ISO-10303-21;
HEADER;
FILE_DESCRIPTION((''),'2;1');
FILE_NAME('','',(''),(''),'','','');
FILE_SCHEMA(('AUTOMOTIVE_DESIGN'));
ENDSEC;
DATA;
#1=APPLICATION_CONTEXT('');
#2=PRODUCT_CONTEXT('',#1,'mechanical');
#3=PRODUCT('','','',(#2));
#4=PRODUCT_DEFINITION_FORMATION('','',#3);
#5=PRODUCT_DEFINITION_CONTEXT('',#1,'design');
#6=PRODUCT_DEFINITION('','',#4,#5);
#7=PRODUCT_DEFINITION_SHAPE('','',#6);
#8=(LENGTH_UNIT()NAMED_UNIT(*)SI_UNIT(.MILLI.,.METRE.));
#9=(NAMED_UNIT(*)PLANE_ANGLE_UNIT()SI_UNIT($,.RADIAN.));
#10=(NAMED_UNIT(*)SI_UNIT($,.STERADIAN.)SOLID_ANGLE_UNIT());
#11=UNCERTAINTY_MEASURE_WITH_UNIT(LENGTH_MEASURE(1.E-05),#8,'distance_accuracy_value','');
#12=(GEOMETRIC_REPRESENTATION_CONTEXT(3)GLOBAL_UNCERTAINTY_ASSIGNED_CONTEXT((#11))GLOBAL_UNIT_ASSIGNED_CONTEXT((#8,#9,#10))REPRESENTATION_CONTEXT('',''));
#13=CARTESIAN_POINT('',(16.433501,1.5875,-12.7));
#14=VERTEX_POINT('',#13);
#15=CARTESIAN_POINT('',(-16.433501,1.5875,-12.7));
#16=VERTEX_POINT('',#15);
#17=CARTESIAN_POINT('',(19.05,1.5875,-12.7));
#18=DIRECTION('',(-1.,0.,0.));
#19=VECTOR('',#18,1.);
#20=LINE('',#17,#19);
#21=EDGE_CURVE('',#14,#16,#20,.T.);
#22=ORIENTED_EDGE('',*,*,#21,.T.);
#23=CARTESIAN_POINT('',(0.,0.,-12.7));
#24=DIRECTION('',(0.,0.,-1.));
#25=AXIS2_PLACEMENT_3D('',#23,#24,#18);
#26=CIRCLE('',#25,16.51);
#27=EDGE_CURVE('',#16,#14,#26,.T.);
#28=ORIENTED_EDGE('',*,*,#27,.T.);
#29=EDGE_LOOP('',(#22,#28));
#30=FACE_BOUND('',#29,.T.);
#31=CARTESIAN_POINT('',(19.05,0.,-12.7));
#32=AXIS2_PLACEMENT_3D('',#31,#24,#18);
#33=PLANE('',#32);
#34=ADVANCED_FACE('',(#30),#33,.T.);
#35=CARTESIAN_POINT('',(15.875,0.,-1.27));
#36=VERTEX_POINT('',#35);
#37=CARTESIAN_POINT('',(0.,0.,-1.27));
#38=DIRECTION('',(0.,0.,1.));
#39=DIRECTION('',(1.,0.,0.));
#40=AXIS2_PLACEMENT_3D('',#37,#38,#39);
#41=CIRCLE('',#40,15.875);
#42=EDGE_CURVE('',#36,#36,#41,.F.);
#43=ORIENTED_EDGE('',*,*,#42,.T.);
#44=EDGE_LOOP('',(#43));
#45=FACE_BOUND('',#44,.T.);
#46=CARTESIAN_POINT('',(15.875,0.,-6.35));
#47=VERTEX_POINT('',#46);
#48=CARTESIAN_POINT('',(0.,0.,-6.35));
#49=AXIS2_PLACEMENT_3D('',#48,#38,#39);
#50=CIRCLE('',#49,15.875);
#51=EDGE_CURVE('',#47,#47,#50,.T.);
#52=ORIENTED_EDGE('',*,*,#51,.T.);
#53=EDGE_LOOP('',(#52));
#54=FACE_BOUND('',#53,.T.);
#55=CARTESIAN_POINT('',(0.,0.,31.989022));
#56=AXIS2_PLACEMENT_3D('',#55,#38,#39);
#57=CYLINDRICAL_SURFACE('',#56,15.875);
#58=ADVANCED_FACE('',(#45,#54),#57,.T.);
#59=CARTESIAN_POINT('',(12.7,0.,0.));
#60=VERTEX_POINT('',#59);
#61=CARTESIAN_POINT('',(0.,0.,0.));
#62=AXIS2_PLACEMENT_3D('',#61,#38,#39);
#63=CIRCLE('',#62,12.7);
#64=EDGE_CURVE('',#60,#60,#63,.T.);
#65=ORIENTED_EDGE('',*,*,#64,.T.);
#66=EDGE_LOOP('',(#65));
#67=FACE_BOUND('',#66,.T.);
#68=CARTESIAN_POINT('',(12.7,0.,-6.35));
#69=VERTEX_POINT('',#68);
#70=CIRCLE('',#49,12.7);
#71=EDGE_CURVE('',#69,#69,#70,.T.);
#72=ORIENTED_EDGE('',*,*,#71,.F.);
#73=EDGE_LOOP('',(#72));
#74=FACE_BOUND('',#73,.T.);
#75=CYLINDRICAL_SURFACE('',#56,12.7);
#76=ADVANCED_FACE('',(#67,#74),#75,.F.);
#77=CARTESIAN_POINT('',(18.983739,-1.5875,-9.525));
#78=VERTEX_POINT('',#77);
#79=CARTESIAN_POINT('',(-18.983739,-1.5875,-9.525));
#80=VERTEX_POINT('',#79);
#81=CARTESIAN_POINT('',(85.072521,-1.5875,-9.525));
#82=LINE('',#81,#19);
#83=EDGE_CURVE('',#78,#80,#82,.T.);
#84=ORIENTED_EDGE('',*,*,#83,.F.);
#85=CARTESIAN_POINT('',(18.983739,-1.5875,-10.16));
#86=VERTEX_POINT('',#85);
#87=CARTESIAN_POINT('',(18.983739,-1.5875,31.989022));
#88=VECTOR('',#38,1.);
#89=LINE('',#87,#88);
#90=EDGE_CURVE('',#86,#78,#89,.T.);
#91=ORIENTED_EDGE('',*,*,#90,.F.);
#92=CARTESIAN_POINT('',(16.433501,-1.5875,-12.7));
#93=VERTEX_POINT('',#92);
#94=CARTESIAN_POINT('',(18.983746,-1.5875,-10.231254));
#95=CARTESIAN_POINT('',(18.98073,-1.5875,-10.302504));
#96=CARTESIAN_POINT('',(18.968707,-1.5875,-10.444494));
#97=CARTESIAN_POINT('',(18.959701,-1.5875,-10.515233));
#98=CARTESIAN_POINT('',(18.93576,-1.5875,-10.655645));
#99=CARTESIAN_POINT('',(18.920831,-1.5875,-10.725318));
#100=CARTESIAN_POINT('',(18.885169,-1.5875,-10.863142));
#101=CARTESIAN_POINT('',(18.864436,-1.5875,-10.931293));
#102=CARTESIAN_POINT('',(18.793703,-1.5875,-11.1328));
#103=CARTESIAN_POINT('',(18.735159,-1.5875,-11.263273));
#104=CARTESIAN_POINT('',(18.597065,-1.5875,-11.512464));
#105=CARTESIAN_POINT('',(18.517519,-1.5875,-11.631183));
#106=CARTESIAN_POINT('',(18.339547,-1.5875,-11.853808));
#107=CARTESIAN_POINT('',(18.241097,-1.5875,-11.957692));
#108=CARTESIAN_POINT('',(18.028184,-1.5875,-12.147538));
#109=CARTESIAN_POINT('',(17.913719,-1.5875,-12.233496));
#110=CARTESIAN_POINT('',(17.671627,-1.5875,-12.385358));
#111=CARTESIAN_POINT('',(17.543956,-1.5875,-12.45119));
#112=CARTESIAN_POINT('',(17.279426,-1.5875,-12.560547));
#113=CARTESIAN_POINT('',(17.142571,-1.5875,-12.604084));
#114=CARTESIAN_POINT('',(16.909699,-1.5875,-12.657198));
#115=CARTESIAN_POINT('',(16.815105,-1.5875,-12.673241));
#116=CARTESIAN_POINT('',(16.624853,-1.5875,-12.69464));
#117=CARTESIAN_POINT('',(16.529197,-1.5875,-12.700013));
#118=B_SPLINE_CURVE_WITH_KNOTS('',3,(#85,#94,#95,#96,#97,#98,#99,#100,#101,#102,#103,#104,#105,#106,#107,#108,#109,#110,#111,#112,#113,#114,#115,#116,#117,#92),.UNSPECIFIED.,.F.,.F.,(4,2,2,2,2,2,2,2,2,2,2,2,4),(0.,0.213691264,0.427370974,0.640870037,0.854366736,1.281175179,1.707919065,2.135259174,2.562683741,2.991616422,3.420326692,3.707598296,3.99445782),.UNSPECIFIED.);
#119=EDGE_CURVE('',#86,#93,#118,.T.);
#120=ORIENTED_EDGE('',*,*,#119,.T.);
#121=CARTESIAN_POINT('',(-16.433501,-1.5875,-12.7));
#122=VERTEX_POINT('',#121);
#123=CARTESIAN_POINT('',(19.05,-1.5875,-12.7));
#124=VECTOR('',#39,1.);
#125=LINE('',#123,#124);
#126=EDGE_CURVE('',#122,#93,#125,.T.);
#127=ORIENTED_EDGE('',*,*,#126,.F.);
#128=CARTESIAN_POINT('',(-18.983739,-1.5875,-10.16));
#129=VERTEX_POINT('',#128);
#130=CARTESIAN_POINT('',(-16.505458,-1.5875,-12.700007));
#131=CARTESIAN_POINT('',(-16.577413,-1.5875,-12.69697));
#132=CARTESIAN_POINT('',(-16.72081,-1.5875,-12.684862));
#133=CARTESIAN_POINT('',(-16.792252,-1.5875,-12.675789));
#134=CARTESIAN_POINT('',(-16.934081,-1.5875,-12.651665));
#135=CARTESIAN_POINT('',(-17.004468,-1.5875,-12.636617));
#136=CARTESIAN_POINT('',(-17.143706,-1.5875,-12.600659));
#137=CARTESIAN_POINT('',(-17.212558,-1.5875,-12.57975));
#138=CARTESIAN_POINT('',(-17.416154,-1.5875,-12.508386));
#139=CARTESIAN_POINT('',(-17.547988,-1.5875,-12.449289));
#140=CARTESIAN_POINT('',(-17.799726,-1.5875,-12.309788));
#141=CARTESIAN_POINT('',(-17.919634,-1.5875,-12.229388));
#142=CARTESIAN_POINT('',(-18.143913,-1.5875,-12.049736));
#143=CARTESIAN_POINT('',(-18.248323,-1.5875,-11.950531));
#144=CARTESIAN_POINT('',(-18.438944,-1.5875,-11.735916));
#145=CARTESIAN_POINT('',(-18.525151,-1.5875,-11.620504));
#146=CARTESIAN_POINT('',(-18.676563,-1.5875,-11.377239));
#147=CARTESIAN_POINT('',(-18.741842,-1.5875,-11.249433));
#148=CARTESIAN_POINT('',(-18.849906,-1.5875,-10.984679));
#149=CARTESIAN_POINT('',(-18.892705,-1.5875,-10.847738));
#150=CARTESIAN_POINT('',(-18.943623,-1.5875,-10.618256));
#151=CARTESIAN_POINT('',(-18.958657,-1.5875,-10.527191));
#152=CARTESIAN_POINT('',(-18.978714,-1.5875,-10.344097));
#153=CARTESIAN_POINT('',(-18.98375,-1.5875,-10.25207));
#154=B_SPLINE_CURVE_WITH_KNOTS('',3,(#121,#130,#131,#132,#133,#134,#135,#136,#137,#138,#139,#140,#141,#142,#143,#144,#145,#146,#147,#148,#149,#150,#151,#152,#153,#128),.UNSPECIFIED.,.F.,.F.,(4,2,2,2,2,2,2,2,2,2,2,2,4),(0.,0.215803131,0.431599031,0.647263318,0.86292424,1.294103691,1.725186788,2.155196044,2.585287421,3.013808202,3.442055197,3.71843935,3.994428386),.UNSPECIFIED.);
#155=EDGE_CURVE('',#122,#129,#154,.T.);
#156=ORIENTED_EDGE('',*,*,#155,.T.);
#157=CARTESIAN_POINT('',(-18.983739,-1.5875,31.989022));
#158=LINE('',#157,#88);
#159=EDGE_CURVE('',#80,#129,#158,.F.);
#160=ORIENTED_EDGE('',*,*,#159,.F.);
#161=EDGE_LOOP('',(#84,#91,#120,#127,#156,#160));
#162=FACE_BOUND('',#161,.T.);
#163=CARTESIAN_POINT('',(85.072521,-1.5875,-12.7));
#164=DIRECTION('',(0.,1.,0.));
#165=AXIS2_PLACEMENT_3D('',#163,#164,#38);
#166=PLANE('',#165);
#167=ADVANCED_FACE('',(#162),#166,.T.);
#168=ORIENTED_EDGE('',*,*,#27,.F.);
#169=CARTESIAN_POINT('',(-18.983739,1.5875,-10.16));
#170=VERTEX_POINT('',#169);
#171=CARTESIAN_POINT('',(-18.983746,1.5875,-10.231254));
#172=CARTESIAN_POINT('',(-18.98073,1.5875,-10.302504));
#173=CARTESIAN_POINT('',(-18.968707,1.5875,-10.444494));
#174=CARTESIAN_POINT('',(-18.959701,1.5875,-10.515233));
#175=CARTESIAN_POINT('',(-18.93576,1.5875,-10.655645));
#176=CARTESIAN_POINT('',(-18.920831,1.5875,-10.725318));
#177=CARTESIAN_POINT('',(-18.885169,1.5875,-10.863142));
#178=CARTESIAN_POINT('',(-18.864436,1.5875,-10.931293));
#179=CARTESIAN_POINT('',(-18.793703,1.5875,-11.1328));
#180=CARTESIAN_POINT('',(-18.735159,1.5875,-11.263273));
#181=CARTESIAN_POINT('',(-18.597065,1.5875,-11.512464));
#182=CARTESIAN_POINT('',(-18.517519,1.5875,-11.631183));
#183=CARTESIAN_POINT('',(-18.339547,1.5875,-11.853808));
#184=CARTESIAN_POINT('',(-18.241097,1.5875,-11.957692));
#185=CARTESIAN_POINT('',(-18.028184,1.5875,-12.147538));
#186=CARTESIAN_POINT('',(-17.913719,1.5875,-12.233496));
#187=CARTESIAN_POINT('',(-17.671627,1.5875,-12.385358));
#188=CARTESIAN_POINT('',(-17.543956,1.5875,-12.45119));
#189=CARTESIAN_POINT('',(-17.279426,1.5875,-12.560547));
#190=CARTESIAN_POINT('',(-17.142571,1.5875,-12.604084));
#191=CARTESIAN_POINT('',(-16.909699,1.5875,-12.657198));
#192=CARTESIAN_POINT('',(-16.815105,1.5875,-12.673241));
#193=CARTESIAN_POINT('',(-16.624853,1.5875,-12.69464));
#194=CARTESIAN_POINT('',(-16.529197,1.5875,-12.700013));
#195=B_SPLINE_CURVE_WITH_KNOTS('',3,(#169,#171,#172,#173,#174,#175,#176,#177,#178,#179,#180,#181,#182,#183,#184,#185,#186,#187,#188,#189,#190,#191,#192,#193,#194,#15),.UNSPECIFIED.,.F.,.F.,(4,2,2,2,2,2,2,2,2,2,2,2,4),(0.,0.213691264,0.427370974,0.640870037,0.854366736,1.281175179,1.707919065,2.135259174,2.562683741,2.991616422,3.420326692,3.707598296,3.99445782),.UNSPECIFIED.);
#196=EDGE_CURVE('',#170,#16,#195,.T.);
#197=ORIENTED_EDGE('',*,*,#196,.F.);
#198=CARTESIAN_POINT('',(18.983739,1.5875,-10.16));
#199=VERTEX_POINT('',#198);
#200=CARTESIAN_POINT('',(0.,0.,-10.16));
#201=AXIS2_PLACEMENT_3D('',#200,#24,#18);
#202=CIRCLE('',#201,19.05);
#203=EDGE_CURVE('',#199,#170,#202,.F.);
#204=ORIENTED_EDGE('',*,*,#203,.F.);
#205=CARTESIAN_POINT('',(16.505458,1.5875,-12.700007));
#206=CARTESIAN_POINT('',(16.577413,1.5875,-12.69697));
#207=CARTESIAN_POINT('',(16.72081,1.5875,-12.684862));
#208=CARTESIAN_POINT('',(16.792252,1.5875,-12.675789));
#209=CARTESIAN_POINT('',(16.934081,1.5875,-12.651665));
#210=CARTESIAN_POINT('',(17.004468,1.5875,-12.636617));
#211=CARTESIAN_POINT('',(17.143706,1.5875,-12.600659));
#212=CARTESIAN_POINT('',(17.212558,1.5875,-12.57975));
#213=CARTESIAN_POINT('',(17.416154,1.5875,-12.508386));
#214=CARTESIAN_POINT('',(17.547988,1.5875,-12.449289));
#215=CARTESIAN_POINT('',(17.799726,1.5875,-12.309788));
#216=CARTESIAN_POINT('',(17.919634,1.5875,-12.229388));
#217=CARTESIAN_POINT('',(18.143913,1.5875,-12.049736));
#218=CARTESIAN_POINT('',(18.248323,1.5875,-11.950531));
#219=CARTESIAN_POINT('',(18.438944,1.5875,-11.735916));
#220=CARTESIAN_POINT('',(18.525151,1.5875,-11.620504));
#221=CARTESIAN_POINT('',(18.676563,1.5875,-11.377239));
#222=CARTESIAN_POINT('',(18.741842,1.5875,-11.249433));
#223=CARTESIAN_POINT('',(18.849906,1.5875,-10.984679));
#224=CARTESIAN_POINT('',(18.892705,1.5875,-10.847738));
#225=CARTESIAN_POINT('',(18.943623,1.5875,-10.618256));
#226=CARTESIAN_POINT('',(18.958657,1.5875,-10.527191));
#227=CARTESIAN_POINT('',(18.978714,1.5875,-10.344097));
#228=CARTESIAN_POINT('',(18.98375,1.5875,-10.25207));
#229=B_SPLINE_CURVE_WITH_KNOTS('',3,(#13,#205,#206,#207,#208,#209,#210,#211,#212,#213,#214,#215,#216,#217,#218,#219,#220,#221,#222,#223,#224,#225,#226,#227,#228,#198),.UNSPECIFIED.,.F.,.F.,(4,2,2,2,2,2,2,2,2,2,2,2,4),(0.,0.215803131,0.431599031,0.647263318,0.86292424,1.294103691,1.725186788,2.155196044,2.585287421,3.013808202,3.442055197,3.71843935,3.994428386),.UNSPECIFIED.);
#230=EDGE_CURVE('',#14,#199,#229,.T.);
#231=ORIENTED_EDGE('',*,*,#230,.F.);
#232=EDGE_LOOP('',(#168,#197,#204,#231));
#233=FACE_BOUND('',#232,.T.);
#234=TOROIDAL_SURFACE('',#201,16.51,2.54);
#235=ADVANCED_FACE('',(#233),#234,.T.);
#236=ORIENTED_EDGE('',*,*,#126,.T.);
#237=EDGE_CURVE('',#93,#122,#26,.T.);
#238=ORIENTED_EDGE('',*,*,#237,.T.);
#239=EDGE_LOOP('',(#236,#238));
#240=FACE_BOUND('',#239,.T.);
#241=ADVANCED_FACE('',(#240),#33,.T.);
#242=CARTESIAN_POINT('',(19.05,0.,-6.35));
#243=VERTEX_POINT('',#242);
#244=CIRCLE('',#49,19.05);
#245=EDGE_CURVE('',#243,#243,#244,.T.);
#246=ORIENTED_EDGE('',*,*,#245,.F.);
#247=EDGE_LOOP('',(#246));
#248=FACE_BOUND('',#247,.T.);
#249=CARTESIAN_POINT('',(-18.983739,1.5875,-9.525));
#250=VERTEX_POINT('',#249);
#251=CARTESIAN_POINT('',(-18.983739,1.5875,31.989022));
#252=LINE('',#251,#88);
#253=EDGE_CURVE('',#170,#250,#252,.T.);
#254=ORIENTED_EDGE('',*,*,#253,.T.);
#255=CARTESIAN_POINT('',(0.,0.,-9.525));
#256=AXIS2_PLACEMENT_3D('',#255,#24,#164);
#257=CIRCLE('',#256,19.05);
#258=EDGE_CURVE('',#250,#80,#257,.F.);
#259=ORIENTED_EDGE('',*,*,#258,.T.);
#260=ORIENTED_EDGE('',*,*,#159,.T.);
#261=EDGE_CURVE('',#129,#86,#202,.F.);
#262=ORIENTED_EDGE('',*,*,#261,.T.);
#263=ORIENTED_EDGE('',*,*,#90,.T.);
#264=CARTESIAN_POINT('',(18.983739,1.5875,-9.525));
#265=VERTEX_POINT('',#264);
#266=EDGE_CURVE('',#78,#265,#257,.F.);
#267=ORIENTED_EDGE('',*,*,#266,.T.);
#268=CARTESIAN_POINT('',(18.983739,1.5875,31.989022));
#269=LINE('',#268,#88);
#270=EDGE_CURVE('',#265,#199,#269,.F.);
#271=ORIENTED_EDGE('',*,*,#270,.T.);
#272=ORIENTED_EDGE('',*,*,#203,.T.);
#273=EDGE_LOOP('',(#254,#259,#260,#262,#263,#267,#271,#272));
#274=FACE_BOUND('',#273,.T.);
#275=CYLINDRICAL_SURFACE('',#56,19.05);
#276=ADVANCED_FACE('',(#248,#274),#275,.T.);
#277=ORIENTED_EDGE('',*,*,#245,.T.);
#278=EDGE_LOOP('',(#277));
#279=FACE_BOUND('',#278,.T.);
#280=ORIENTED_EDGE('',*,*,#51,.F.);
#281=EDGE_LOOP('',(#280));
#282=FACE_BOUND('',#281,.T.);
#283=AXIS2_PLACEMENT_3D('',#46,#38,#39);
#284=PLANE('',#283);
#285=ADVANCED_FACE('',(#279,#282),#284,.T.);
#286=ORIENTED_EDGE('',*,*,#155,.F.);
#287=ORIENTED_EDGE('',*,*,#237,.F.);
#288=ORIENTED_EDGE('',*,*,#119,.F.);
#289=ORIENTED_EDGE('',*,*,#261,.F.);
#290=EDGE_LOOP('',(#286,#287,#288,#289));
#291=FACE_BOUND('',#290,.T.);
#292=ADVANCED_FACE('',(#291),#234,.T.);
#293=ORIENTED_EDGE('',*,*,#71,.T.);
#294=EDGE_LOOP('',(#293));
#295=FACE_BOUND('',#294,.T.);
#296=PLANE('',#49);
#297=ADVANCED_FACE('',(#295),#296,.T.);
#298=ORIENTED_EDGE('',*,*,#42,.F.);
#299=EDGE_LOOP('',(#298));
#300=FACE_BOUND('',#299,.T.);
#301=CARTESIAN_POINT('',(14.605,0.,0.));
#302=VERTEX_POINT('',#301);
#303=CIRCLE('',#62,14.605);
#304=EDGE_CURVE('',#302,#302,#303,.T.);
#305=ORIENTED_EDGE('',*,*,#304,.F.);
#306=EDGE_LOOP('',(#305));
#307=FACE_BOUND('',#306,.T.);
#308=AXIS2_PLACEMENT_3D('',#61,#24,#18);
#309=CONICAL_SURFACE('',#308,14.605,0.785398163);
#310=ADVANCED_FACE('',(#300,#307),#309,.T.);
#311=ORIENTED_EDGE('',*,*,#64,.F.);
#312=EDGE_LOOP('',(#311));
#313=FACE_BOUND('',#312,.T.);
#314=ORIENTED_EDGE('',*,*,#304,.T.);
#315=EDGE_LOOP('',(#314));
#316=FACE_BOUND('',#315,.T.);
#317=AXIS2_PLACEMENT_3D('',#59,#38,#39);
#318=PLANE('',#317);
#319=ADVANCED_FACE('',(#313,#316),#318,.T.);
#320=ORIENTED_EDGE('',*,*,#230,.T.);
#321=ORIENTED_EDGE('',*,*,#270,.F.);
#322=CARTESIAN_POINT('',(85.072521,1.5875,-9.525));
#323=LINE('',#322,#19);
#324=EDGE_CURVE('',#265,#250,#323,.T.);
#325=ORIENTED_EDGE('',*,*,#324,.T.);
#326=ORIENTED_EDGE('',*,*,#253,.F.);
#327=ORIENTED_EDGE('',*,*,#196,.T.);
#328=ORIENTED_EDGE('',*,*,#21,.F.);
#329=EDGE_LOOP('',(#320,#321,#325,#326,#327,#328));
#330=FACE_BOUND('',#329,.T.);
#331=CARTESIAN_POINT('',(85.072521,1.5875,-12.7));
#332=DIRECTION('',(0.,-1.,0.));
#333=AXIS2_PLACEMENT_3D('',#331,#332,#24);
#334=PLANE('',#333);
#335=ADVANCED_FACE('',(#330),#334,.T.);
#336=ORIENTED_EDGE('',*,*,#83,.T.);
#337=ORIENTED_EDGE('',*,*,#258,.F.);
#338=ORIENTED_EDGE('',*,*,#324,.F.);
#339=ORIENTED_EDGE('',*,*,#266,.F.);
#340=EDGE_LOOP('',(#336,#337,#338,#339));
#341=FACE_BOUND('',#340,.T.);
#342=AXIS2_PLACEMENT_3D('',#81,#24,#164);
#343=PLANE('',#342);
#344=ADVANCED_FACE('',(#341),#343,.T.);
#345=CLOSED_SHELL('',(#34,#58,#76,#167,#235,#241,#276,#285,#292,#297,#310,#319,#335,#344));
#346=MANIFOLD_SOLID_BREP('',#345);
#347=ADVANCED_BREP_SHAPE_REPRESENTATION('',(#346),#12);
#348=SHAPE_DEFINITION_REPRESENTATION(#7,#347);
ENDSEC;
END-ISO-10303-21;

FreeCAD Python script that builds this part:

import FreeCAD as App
import Part
import Sketcher
Q = App.Units.Quantity


def edges_at(feature, points):
    """Names of the edges that pass closest to the given points."""
    edges = feature.Shape.Edges
    near = lambda p: min(range(len(edges)), key=lambda i: edges[i].distToShape(Part.Vertex(*p))[0])
    return sorted({f"Edge{near(p) + 1}" for p in points})


def add_polygon(sketch, points):
    """Adds a closed chain of lines whose ends are joined by coincident constraints."""
    first, n = sketch.GeometryCount, len(points)
    for a, b in zip(points, points[1:] + points[:1]):
        sketch.addGeometry(Part.LineSegment(App.Vector(*a, 0), App.Vector(*b, 0)), False)
    for i in range(n):
        sketch.addConstraint(Sketcher.Constraint("Coincident", first + i, 2, first + (i + 1) % n, 1))

doc = App.newDocument("Part")
body = doc.addObject("PartDesign::Body", "Body")

sketch1 = doc.addObject("Sketcher::SketchObject", "Sketch")
body.addObject(sketch1)
sketch1.AttachmentSupport = (doc.XZ_Plane, [""])
sketch1.MapMode = "FlatFace"
add_polygon(sketch1, [(12.7, 0), (15.9, 0), (15.9, -6.3), (19.1, -6.3), (19.1, -12.7), (0, -12.7), (0, -6.3), (12.7, -6.3)])
sketch1.addConstraint(Sketcher.Constraint("Horizontal", 0))
sketch1.addConstraint(Sketcher.Constraint("Vertical", 1))
sketch1.addConstraint(Sketcher.Constraint("Horizontal", 2))
sketch1.addConstraint(Sketcher.Constraint("Vertical", 3))
sketch1.addConstraint(Sketcher.Constraint("Horizontal", 4))
sketch1.addConstraint(Sketcher.Constraint("Vertical", 5))
sketch1.addConstraint(Sketcher.Constraint("Horizontal", 6))
sketch1.addConstraint(Sketcher.Constraint("Vertical", 7))
sketch1.addConstraint(Sketcher.Constraint("PointOnObject", 0, 2, -1))
sketch1.addConstraint(Sketcher.Constraint("PointOnObject", 4, 2, -2))
sketch1.addConstraint(Sketcher.Constraint("Horizontal", 2, 2, 5, 2))
sketch1.addConstraint(Sketcher.Constraint("Equal", 0, 2))
sketch1.addConstraint(Sketcher.Constraint("Equal", 1, 3))
sketch1.addConstraint(Sketcher.Constraint("DistanceX", 6, 1, 6, 2, Q("0.5 in")))
sketch1.addConstraint(Sketcher.Constraint("DistanceX", 4, 2, 4, 1, Q("0.75 in")))
sketch1.addConstraint(Sketcher.Constraint("DistanceY", 1, 2, 1, 1, Q("0.25 in")))
revolution = doc.addObject("PartDesign::Revolution", "Revolution")
body.addObject(revolution)
revolution.Profile = sketch1
revolution.ReferenceAxis = (sketch1, ["V_Axis"])
revolution.Angle = 360

sketch2 = doc.addObject("Sketcher::SketchObject", "Sketch001")
body.addObject(sketch2)
sketch2.AttachmentSupport = (doc.YZ_Plane, [""])
sketch2.MapMode = "FlatFace"
add_polygon(sketch2, [(-1.6, -9.5), (-1.6, -188.1), (1.6, -188.1), (1.6, -9.5)])
sketch2.addConstraint(Sketcher.Constraint("Vertical", 0))
sketch2.addConstraint(Sketcher.Constraint("Horizontal", 1))
sketch2.addConstraint(Sketcher.Constraint("Vertical", 2))
sketch2.addConstraint(Sketcher.Constraint("Horizontal", 3))
sketch2.addConstraint(Sketcher.Constraint("DistanceX", 1, 1, 1, 2, Q("0.125 in")))
sketch2.addConstraint(Sketcher.Constraint("DistanceX", 0, 2, -1, 1, Q("0.0625 in")))
sketch2.addConstraint(Sketcher.Constraint("DistanceY", 2, 2, -1, 1, Q("0.375 in")))
sketch2.addConstraint(Sketcher.Constraint("DistanceY", 0, 2, 0, 1, Q("178.567815 mm")))
pocket1 = doc.addObject("PartDesign::Pocket", "Pocket")
body.addObject(pocket1)
pocket1.Profile = sketch2
pocket1.Type = "ThroughAll"
pocket1.Midplane = True
doc.recompute()

fillet = doc.addObject("PartDesign::Fillet", "Fillet")
body.addObject(fillet)
fillet.Base = (pocket1, edges_at(pocket1, [(0, -19.05, -12.7), (0, 19.05, -12.7)]))
fillet.Radius = Q("0.1 in")
doc.recompute()

chamfer = doc.addObject("PartDesign::Chamfer", "Chamfer")
body.addObject(chamfer)
chamfer.Base = (fillet, edges_at(fillet, [(-15.875, 0, 0)]))
chamfer.Size = Q("0.05 in")

doc.recompute()
